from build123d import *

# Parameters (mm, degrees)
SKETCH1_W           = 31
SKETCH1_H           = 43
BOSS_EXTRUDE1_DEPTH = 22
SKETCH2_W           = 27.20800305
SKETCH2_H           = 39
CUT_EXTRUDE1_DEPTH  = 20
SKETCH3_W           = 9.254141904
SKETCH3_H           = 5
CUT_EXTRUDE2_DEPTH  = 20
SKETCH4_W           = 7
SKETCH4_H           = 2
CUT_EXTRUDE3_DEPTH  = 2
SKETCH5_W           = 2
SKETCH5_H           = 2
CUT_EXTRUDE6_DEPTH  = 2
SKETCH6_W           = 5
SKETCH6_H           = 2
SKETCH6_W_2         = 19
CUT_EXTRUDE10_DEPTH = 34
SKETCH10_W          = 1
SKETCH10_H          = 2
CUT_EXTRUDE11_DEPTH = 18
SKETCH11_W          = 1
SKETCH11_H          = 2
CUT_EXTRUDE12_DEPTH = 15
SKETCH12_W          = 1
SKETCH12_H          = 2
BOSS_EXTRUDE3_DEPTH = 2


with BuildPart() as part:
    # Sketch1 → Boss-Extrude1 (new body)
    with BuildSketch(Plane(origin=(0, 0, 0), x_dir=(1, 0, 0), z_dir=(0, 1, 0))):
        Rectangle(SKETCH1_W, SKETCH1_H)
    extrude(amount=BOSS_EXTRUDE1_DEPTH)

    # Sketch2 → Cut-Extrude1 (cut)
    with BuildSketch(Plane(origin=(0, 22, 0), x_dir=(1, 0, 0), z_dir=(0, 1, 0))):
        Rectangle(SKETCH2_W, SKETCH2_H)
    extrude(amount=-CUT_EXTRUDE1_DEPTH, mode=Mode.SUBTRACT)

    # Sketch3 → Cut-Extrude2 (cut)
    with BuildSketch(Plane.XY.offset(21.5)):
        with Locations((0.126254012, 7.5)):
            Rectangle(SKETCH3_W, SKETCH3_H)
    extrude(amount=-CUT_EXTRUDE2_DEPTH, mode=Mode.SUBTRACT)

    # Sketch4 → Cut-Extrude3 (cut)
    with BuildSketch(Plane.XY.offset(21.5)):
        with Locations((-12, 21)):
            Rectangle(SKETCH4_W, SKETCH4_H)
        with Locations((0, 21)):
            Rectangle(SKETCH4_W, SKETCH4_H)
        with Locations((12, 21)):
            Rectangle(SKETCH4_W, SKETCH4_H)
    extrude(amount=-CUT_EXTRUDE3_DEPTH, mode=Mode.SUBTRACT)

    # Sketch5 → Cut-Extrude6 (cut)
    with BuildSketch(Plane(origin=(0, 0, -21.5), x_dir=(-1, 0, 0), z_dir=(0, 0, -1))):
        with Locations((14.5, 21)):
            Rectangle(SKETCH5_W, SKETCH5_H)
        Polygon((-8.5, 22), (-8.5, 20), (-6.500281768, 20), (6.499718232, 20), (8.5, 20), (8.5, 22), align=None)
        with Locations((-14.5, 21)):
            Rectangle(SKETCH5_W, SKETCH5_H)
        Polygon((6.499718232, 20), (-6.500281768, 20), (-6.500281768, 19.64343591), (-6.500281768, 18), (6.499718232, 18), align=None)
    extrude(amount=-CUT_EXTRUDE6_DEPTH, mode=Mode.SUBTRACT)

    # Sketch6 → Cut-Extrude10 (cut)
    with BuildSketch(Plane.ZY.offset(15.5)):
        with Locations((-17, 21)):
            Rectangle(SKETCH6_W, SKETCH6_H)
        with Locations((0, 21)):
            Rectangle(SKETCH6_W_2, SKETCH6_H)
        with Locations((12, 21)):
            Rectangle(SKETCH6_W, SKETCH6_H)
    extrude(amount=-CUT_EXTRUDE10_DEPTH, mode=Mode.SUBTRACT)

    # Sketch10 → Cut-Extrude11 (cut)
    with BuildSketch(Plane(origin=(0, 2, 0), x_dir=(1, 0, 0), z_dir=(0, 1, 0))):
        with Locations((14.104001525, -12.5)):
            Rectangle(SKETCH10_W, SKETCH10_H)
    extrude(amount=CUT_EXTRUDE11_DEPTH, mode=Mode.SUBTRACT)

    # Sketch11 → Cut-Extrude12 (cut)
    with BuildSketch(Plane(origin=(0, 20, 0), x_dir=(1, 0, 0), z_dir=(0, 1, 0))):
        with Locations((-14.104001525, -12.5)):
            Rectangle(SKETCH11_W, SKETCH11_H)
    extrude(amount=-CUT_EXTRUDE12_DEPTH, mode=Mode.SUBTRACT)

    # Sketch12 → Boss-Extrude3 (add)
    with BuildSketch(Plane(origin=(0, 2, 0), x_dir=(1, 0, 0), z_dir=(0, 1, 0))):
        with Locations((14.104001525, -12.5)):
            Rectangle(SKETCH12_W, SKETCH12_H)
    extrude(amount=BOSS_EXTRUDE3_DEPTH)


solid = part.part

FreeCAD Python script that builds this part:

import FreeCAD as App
import Part
import Sketcher

V = App.Vector
Q = App.Units.Quantity

doc = App.newDocument("Part")
body = doc.addObject("PartDesign::Body", "Body")

sketch1 = doc.addObject("Sketcher::SketchObject", "Sketch")
body.addObject(sketch1)
sketch1.AttachmentSupport = (doc.XZ_Plane, [""])
sketch1.MapMode = "FlatFace"
sketch1.addGeometry([
    Part.LineSegment(V(-16, -22, 0), V(-16, 22, 0)),
    Part.LineSegment(V(-16, 22, 0), V(16, 22, 0)),
    Part.LineSegment(V(16, 22, 0), V(16, -22, 0)),
    Part.LineSegment(V(16, -22, 0), V(-16, -22, 0)),
], False)
sketch1.addConstraint([
    Sketcher.Constraint("Coincident", 0, 2, 1, 1),
    Sketcher.Constraint("Coincident", 1, 2, 2, 1),
    Sketcher.Constraint("Coincident", 2, 2, 3, 1),
    Sketcher.Constraint("Coincident", 3, 2, 0, 1),
    Sketcher.Constraint("Vertical", 0),
    Sketcher.Constraint("Horizontal", 1),
    Sketcher.Constraint("Vertical", 2),
    Sketcher.Constraint("Horizontal", 3),
    Sketcher.Constraint("Symmetric", 0, 2, 2, 2, -1, 1),
    Sketcher.Constraint("DistanceX", 1, 1, 1, 2, Q("31 mm")),
    Sketcher.Constraint("DistanceY", 0, 1, 0, 2, Q("43 mm")),
])
pad1 = doc.addObject("PartDesign::Pad", "Pad")
body.addObject(pad1)
pad1.Profile = sketch1
pad1.Length = 22
pad1.Reversed = True

sketch2 = doc.addObject("Sketcher::SketchObject", "Sketch001")
body.addObject(sketch2)
sketch2.AttachmentSupport = (doc.XZ_Plane, [""])
sketch2.MapMode = "FlatFace"
sketch2.AttachmentOffset = App.Placement(V(0, 0, -22), App.Rotation())
sketch2.addGeometry([
    Part.LineSegment(V(-14, -20, 0), V(-14, 20, 0)),
    Part.LineSegment(V(-14, 20, 0), V(14, 20, 0)),
    Part.LineSegment(V(14, 20, 0), V(14, -20, 0)),
    Part.LineSegment(V(14, -20, 0), V(-14, -20, 0)),
], False)
sketch2.addConstraint([
    Sketcher.Constraint("Coincident", 0, 2, 1, 1),
    Sketcher.Constraint("Coincident", 1, 2, 2, 1),
    Sketcher.Constraint("Coincident", 2, 2, 3, 1),
    Sketcher.Constraint("Coincident", 3, 2, 0, 1),
    Sketcher.Constraint("Vertical", 0),
    Sketcher.Constraint("Horizontal", 1),
    Sketcher.Constraint("Vertical", 2),
    Sketcher.Constraint("Horizontal", 3),
    Sketcher.Constraint("Symmetric", 0, 2, 2, 2, -1, 1),
    Sketcher.Constraint("DistanceY", 0, 1, 0, 2, Q("39 mm")),
    Sketcher.Constraint("DistanceX", 0, 2, -1, 1, Q("13.604002 mm")),
])
pocket1 = doc.addObject("PartDesign::Pocket", "Pocket")
body.addObject(pocket1)
pocket1.Profile = sketch2
pocket1.Length = 20
pocket1.Reversed = True

sketch3 = doc.addObject("Sketcher::SketchObject", "Sketch002")
body.addObject(sketch3)
sketch3.AttachmentSupport = (doc.XY_Plane, [""])
sketch3.MapMode = "FlatFace"
sketch3.AttachmentOffset = App.Placement(V(0, 0, 21.5), App.Rotation())
sketch3.addGeometry([
    Part.LineSegment(V(-5, 10, 0), V(-5, 5, 0)),
    Part.LineSegment(V(-5, 5, 0), V(5, 5, 0)),
    Part.LineSegment(V(5, 5, 0), V(5, 10, 0)),
    Part.LineSegment(V(5, 10, 0), V(-5, 10, 0)),
], False)
sketch3.addConstraint([
    Sketcher.Constraint("Coincident", 0, 2, 1, 1),
    Sketcher.Constraint("Coincident", 1, 2, 2, 1),
    Sketcher.Constraint("Coincident", 2, 2, 3, 1),
    Sketcher.Constraint("Coincident", 3, 2, 0, 1),
    Sketcher.Constraint("Vertical", 0),
    Sketcher.Constraint("Horizontal", 1),
    Sketcher.Constraint("Vertical", 2),
    Sketcher.Constraint("Horizontal", 3),
    Sketcher.Constraint("DistanceY", 0, 2, 0, 1, Q("5 mm")),
    Sketcher.Constraint("DistanceY", -1, 1, 0, 2, Q("5 mm")),
    Sketcher.Constraint("DistanceX", 1, 1, 1, 2, Q("9.254142 mm")),
    Sketcher.Constraint("DistanceX", 0, 2, -1, 1, Q("4.500817 mm")),
])
pocket2 = doc.addObject("PartDesign::Pocket", "Pocket001")
body.addObject(pocket2)
pocket2.Profile = sketch3
pocket2.Length = 20

sketch4 = doc.addObject("Sketcher::SketchObject", "Sketch003")
body.addObject(sketch4)
sketch4.AttachmentSupport = (doc.XY_Plane, [""])
sketch4.MapMode = "FlatFace"
sketch4.AttachmentOffset = App.Placement(V(0, 0, 21.5), App.Rotation())
sketch4.addGeometry([
    Part.LineSegment(V(-15.5, 22, 0), V(-15.5, 20, 0)),
    Part.LineSegment(V(-15.5, 20, 0), V(-8.5, 20, 0)),
    Part.LineSegment(V(-8.5, 20, 0), V(-8.5, 22, 0)),
    Part.LineSegment(V(-8.5, 22, 0), V(-15.5, 22, 0)),
    Part.LineSegment(V(-3.5, 22, 0), V(-3.5, 20, 0)),
    Part.LineSegment(V(-3.5, 20, 0), V(3.5, 20, 0)),
    Part.LineSegment(V(3.5, 20, 0), V(3.5, 22, 0)),
    Part.LineSegment(V(3.5, 22, 0), V(-3.5, 22, 0)),
    Part.LineSegment(V(8.5, 22, 0), V(8.5, 20, 0)),
    Part.LineSegment(V(8.5, 20, 0), V(15.5, 20, 0)),
    Part.LineSegment(V(15.5, 20, 0), V(15.5, 22, 0)),
    Part.LineSegment(V(15.5, 22, 0), V(8.5, 22, 0)),
], False)
sketch4.addConstraint([
    Sketcher.Constraint("Coincident", 0, 2, 1, 1),
    Sketcher.Constraint("Coincident", 1, 2, 2, 1),
    Sketcher.Constraint("Coincident", 2, 2, 3, 1),
    Sketcher.Constraint("Coincident", 3, 2, 0, 1),
    Sketcher.Constraint("Coincident", 4, 2, 5, 1),
    Sketcher.Constraint("Coincident", 5, 2, 6, 1),
    Sketcher.Constraint("Coincident", 6, 2, 7, 1),
    Sketcher.Constraint("Coincident", 7, 2, 4, 1),
    Sketcher.Constraint("Coincident", 8, 2, 9, 1),
    Sketcher.Constraint("Coincident", 9, 2, 10, 1),
    Sketcher.Constraint("Coincident", 10, 2, 11, 1),
    Sketcher.Constraint("Coincident", 11, 2, 8, 1),
    Sketcher.Constraint("Vertical", 0),
    Sketcher.Constraint("Horizontal", 1),
    Sketcher.Constraint("Vertical", 2),
    Sketcher.Constraint("Horizontal", 3),
    Sketcher.Constraint("Vertical", 4),
    Sketcher.Constraint("Horizontal", 5),
    Sketcher.Constraint("Vertical", 6),
    Sketcher.Constraint("Horizontal", 7),
    Sketcher.Constraint("Vertical", 8),
    Sketcher.Constraint("Horizontal", 9),
    Sketcher.Constraint("Vertical", 10),
    Sketcher.Constraint("Horizontal", 11),
    Sketcher.Constraint("Symmetric", 1, 2, 8, 2, -2),
    Sketcher.Constraint("Symmetric", 3, 2, 10, 2, -2),
    Sketcher.Constraint("Horizontal", 1, 2, 4, 2),
    Sketcher.Constraint("Horizontal", 3, 2, 6, 2),
    Sketcher.Constraint("Equal", 3, 5),
    Sketcher.Constraint("DistanceX", 1, 1, 1, 2, Q("7 mm")),
    Sketcher.Constraint("DistanceY", 0, 2, 0, 1, Q("2 mm")),
    Sketcher.Constraint("DistanceY", -1, 1, 0, 2, Q("20 mm")),
    Sketcher.Constraint("DistanceX", 1, 2, 4, 2, Q("5 mm")),
    Sketcher.Constraint("DistanceX", 5, 2, 8, 2, Q("5 mm")),
])
pocket3 = doc.addObject("PartDesign::Pocket", "Pocket002")
body.addObject(pocket3)
pocket3.Profile = sketch4
pocket3.Length = 2

sketch5 = doc.addObject("Sketcher::SketchObject", "Sketch004")
body.addObject(sketch5)
sketch5.AttachmentSupport = (doc.XY_Plane, [""])
sketch5.MapMode = "FlatFace"
sketch5.AttachmentOffset = App.Placement(V(0, 0, -21.5), App.Rotation())
sketch5.addGeometry([
    Part.LineSegment(V(-13.5, 22, 0), V(-13.5, 20, 0)),
    Part.LineSegment(V(-13.5, 20, 0), V(-15.5, 20, 0)),
    Part.LineSegment(V(-15.5, 20, 0), V(-15.5, 22, 0)),
    Part.LineSegment(V(-15.5, 22, 0), V(-13.5, 22, 0)),
    Part.LineSegment(V(8.5, 22, 0), V(8.5, 20, 0)),
    Part.LineSegment(V(8.5, 20, 0), V(6.5, 20, 0)),
    Part.LineSegment(V(6.5, 20, 0), V(6.5, 18, 0)),
    Part.LineSegment(V(6.5, 18, 0), V(-6.5, 18, 0)),
    Part.LineSegment(V(-6.5, 18, 0), V(-6.5, 20, 0)),
    Part.LineSegment(V(-6.5, 20, 0), V(-8.5, 20, 0)),
    Part.LineSegment(V(-8.5, 20, 0), V(-8.5, 22, 0)),
    Part.LineSegment(V(-8.5, 22, 0), V(8.5, 22, 0)),
    Part.LineSegment(V(15.5, 22, 0), V(15.5, 20, 0)),
    Part.LineSegment(V(15.5, 20, 0), V(13.5, 20, 0)),
    Part.LineSegment(V(13.5, 20, 0), V(13.5, 22, 0)),
    Part.LineSegment(V(13.5, 22, 0), V(15.5, 22, 0)),
], False)
sketch5.addConstraint([
    Sketcher.Constraint("Coincident", 0, 2, 1, 1),
    Sketcher.Constraint("Coincident", 1, 2, 2, 1),
    Sketcher.Constraint("Coincident", 2, 2, 3, 1),
    Sketcher.Constraint("Coincident", 3, 2, 0, 1),
    Sketcher.Constraint("Coincident", 4, 2, 5, 1),
    Sketcher.Constraint("Coincident", 5, 2, 6, 1),
    Sketcher.Constraint("Coincident", 6, 2, 7, 1),
    Sketcher.Constraint("Coincident", 7, 2, 8, 1),
    Sketcher.Constraint("Coincident", 8, 2, 9, 1),
    Sketcher.Constraint("Coincident", 9, 2, 10, 1),
    Sketcher.Constraint("Coincident", 10, 2, 11, 1),
    Sketcher.Constraint("Coincident", 11, 2, 4, 1),
    Sketcher.Constraint("Coincident", 12, 2, 13, 1),
    Sketcher.Constraint("Coincident", 13, 2, 14, 1),
    Sketcher.Constraint("Coincident", 14, 2, 15, 1),
    Sketcher.Constraint("Coincident", 15, 2, 12, 1),
    Sketcher.Constraint("Vertical", 0),
    Sketcher.Constraint("Horizontal", 1),
    Sketcher.Constraint("Vertical", 2),
    Sketcher.Constraint("Horizontal", 3),
    Sketcher.Constraint("Vertical", 4),
    Sketcher.Constraint("Horizontal", 5),
    Sketcher.Constraint("Vertical", 6),
    Sketcher.Constraint("Horizontal", 7),
    Sketcher.Constraint("Vertical", 8),
    Sketcher.Constraint("Horizontal", 9),
    Sketcher.Constraint("Vertical", 10),
    Sketcher.Constraint("Horizontal", 11),
    Sketcher.Constraint("Vertical", 12),
    Sketcher.Constraint("Horizontal", 13),
    Sketcher.Constraint("Vertical", 14),
    Sketcher.Constraint("Horizontal", 15),
    Sketcher.Constraint("Symmetric", 4, 2, 9, 2, -2),
    Sketcher.Constraint("Symmetric", 1, 2, 12, 2, -2),
    Sketcher.Constraint("Symmetric", 3, 2, 14, 2, -2),
    Sketcher.Constraint("Horizontal", 1, 2, 4, 2),
    Sketcher.Constraint("Horizontal", 3, 2, 10, 2),
    Sketcher.Constraint("Equal", 15, 0),
    Sketcher.Constraint("Equal", 4, 6),
    Sketcher.Constraint("DistanceX", 1, 2, 1, 1, Q("2 mm")),
    Sketcher.Constraint("DistanceX", 7, 2, 7, 1, Q("13 mm")),
    Sketcher.Constraint("DistanceX", 11, 1, 11, 2, Q("17 mm")),
    Sketcher.Constraint("DistanceY", -1, 1, 0, 2, Q("20 mm")),
    Sketcher.Constraint("DistanceX", 0, 2, 4, 2, Q("22 mm")),
    Sketcher.Constraint("DistanceX", 5, 2, 5, 1, Q("1.999718 mm")),
])
pocket4 = doc.addObject("PartDesign::Pocket", "Pocket003")
body.addObject(pocket4)
pocket4.Profile = sketch5
pocket4.Length = 2
pocket4.Reversed = True

sketch6 = doc.addObject("Sketcher::SketchObject", "Sketch005")
body.addObject(sketch6)
sketch6.AttachmentSupport = (doc.YZ_Plane, [""])
sketch6.MapMode = "FlatFace"
sketch6.AttachmentOffset = App.Placement(V(0, 0, -15.5), App.Rotation())
sketch6.addGeometry([
    Part.LineSegment(V(22, -19.5, 0), V(20, -19.5, 0)),
    Part.LineSegment(V(20, -19.5, 0), V(20, -14.5, 0)),
    Part.LineSegment(V(20, -14.5, 0), V(22, -14.5, 0)),
    Part.LineSegment(V(22, -14.5, 0), V(22, -19.5, 0)),
    Part.LineSegment(V(22, -9.5, 0), V(20, -9.5, 0)),
    Part.LineSegment(V(20, -9.5, 0), V(20, 14.5, 0)),
    Part.LineSegment(V(20, 14.5, 0), V(22, 14.5, 0)),
    Part.LineSegment(V(22, 14.5, 0), V(22, -9.5, 0)),
], False)
sketch6.addConstraint([
    Sketcher.Constraint("Coincident", 0, 2, 1, 1),
    Sketcher.Constraint("Coincident", 1, 2, 2, 1),
    Sketcher.Constraint("Coincident", 2, 2, 3, 1),
    Sketcher.Constraint("Coincident", 3, 2, 0, 1),
    Sketcher.Constraint("Coincident", 4, 2, 5, 1),
    Sketcher.Constraint("Coincident", 5, 2, 6, 1),
    Sketcher.Constraint("Coincident", 6, 2, 7, 1),
    Sketcher.Constraint("Coincident", 7, 2, 4, 1),
    Sketcher.Constraint("Horizontal", 0),
    Sketcher.Constraint("Vertical", 1),
    Sketcher.Constraint("Horizontal", 2),
    Sketcher.Constraint("Vertical", 3),
    Sketcher.Constraint("Horizontal", 4),
    Sketcher.Constraint("Vertical", 5),
    Sketcher.Constraint("Horizontal", 6),
    Sketcher.Constraint("Vertical", 7),
    Sketcher.Constraint("Symmetric", 1, 2, 5, 2, -1),
    Sketcher.Constraint("Vertical", 3, 2, 6, 2),
    Sketcher.Constraint("DistanceX", 0, 2, 0, 1, Q("2 mm")),
    Sketcher.Constraint("DistanceY", 1, 1, 1, 2, Q("5 mm")),
    Sketcher.Constraint("DistanceY", 5, 1, 5, 2, Q("24 mm")),
    Sketcher.Constraint("DistanceX", -1, 1, 0, 2, Q("20 mm")),
    Sketcher.Constraint("DistanceY", 1, 2, 4, 2, Q("5 mm")),
])
pocket5 = doc.addObject("PartDesign::Pocket", "Pocket004")
body.addObject(pocket5)
pocket5.Profile = sketch6
pocket5.Length = 34
pocket5.Reversed = True

sketch7 = doc.addObject("Sketcher::SketchObject", "Sketch006")
body.addObject(sketch7)
sketch7.AttachmentSupport = (doc.XZ_Plane, [""])
sketch7.MapMode = "FlatFace"
sketch7.AttachmentOffset = App.Placement(V(0, 0, -2), App.Rotation())
sketch7.addGeometry([
    Part.LineSegment(V(13.6, 11.5, 0), V(13.6, 13.5, 0)),
    Part.LineSegment(V(13.6, 13.5, 0), V(14.6, 13.5, 0)),
    Part.LineSegment(V(14.6, 13.5, 0), V(14.6, 11.5, 0)),
    Part.LineSegment(V(14.6, 11.5, 0), V(13.6, 11.5, 0)),
], False)
sketch7.addConstraint([
    Sketcher.Constraint("Coincident", 0, 2, 1, 1),
    Sketcher.Constraint("Coincident", 1, 2, 2, 1),
    Sketcher.Constraint("Coincident", 2, 2, 3, 1),
    Sketcher.Constraint("Coincident", 3, 2, 0, 1),
    Sketcher.Constraint("Vertical", 0),
    Sketcher.Constraint("Horizontal", 1),
    Sketcher.Constraint("Vertical", 2),
    Sketcher.Constraint("Horizontal", 3),
    Sketcher.Constraint("DistanceX", 1, 1, 1, 2, Q("1 mm")),
    Sketcher.Constraint("DistanceY", 0, 1, 0, 2, Q("2 mm")),
    Sketcher.Constraint("DistanceY", -1, 1, 0, 2, Q("13.5 mm")),
    Sketcher.Constraint("DistanceX", -1, 1, 0, 2, Q("13.604002 mm")),
])
pocket6 = doc.addObject("PartDesign::Pocket", "Pocket005")
body.addObject(pocket6)
pocket6.Profile = sketch7
pocket6.Length = 18

sketch8 = doc.addObject("Sketcher::SketchObject", "Sketch007")
body.addObject(sketch8)
sketch8.AttachmentSupport = (doc.XZ_Plane, [""])
sketch8.MapMode = "FlatFace"
sketch8.AttachmentOffset = App.Placement(V(0, 0, -20), App.Rotation())
sketch8.addGeometry([
    Part.LineSegment(V(-14.6, 11.5, 0), V(-14.6, 13.5, 0)),
    Part.LineSegment(V(-14.6, 13.5, 0), V(-13.6, 13.5, 0)),
    Part.LineSegment(V(-13.6, 13.5, 0), V(-13.6, 11.5, 0)),
    Part.LineSegment(V(-13.6, 11.5, 0), V(-14.6, 11.5, 0)),
], False)
sketch8.addConstraint([
    Sketcher.Constraint("Coincident", 0, 2, 1, 1),
    Sketcher.Constraint("Coincident", 1, 2, 2, 1),
    Sketcher.Constraint("Coincident", 2, 2, 3, 1),
    Sketcher.Constraint("Coincident", 3, 2, 0, 1),
    Sketcher.Constraint("Vertical", 0),
    Sketcher.Constraint("Horizontal", 1),
    Sketcher.Constraint("Vertical", 2),
    Sketcher.Constraint("Horizontal", 3),
    Sketcher.Constraint("DistanceX", 1, 1, 1, 2, Q("1 mm")),
    Sketcher.Constraint("DistanceY", 0, 1, 0, 2, Q("2 mm")),
    Sketcher.Constraint("DistanceY", -1, 1, 0, 2, Q("13.5 mm")),
    Sketcher.Constraint("DistanceX", 0, 2, -1, 1, Q("14.604002 mm")),
])
pocket7 = doc.addObject("PartDesign::Pocket", "Pocket006")
body.addObject(pocket7)
pocket7.Profile = sketch8
pocket7.Length = 15
pocket7.Reversed = True

sketch9 = doc.addObject("Sketcher::SketchObject", "Sketch008")
body.addObject(sketch9)
sketch9.AttachmentSupport = (doc.XZ_Plane, [""])
sketch9.MapMode = "FlatFace"
sketch9.AttachmentOffset = App.Placement(V(0, 0, -2), App.Rotation())
sketch9.addGeometry([
    Part.LineSegment(V(13.6, 11.5, 0), V(13.6, 13.5, 0)),
    Part.LineSegment(V(13.6, 13.5, 0), V(14.6, 13.5, 0)),
    Part.LineSegment(V(14.6, 13.5, 0), V(14.6, 11.5, 0)),
    Part.LineSegment(V(14.6, 11.5, 0), V(13.6, 11.5, 0)),
], False)
sketch9.addConstraint([
    Sketcher.Constraint("Coincident", 0, 2, 1, 1),
    Sketcher.Constraint("Coincident", 1, 2, 2, 1),
    Sketcher.Constraint("Coincident", 2, 2, 3, 1),
    Sketcher.Constraint("Coincident", 3, 2, 0, 1),
    Sketcher.Constraint("Vertical", 0),
    Sketcher.Constraint("Horizontal", 1),
    Sketcher.Constraint("Vertical", 2),
    Sketcher.Constraint("Horizontal", 3),
    Sketcher.Constraint("DistanceX", 1, 1, 1, 2, Q("1 mm")),
    Sketcher.Constraint("DistanceY", 0, 1, 0, 2, Q("2 mm")),
    Sketcher.Constraint("DistanceY", -1, 1, 0, 2, Q("13.5 mm")),
    Sketcher.Constraint("DistanceX", -1, 1, 0, 2, Q("13.604002 mm")),
])
pad2 = doc.addObject("PartDesign::Pad", "Pad001")
body.addObject(pad2)
pad2.Profile = sketch9
pad2.Length = 2
pad2.Reversed = True

doc.recompute()
